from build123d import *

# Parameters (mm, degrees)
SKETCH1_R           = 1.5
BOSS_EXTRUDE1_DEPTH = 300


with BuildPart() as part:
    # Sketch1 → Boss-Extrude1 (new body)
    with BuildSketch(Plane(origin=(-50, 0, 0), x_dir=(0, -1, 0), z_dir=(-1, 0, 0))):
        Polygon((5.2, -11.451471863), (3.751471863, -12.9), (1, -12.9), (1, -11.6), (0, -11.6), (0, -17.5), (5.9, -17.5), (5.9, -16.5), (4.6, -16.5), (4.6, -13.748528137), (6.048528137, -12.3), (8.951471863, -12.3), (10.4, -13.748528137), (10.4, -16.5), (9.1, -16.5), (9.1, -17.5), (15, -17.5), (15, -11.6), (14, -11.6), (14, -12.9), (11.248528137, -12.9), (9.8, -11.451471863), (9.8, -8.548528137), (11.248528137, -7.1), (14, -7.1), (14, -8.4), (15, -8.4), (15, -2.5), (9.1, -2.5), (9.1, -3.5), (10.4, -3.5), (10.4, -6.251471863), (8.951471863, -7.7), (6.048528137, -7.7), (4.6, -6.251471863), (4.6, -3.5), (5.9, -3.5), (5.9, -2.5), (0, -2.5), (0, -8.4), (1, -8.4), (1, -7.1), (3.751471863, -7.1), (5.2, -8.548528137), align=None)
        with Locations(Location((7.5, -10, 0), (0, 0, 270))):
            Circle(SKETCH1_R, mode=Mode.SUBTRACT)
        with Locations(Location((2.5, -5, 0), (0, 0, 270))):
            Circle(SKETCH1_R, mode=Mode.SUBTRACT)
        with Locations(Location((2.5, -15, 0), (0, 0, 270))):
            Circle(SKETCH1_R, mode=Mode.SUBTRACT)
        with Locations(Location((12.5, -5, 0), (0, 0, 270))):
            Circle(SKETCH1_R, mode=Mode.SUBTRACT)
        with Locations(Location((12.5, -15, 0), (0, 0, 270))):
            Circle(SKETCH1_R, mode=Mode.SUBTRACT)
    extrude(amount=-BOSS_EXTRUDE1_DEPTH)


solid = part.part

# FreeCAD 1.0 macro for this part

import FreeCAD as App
import Part
import Sketcher
Q = App.Units.Quantity


def add_polygon(sketch, points):
    """Adds a closed chain of lines whose ends are joined by coincident constraints."""
    first, n = sketch.GeometryCount, len(points)
    for a, b in zip(points, points[1:] + points[:1]):
        sketch.addGeometry(Part.LineSegment(App.Vector(*a, 0), App.Vector(*b, 0)), False)
    for i in range(n):
        sketch.addConstraint(Sketcher.Constraint("Coincident", first + i, 2, first + (i + 1) % n, 1))

doc = App.newDocument("Part")
params = doc.addObject("Spreadsheet::Sheet", "Params")
for row, (alias, value) in enumerate([
    ("sketch1_diameter", "3 mm"),
    ("sketch1_width", "1 mm"),
    ("sketch1_width2", "5.9 mm"),
    ("sketch1_width3", "1.3 mm"),
    ("pad1_length", "300 mm"),
], start=1):
    params.set(f"A{row}", alias)
    params.set(f"B{row}", "=" + value)
    params.setAlias(f"B{row}", alias)

body = doc.addObject("PartDesign::Body", "Body")

sketch1 = body.newObject("Sketcher::SketchObject", "Sketch")
sketch1.AttachmentSupport = (doc.getObject("YZ_Plane"), [""])
sketch1.MapMode = "FlatFace"
sketch1.AttachmentOffset = App.Placement(App.Vector(0, 0, -50), App.Rotation())
add_polygon(sketch1, [(-5.2, -11.5), (-3.8, -12.9), (-1, -12.9), (-1, -11.6), (0, -11.6), (0, -17.5), (-5.9, -17.5), (-5.9, -16.5), (-4.6, -16.5), (-4.6, -13.7), (-6, -12.3), (-9, -12.3), (-10.4, -13.7), (-10.4, -16.5), (-9.1, -16.5), (-9.1, -17.5), (-15, -17.5), (-15, -11.6), (-14, -11.6), (-14, -12.9), (-11.2, -12.9), (-9.8, -11.5), (-9.8, -8.5), (-11.2, -7.1), (-14, -7.1), (-14, -8.4), (-15, -8.4), (-15, -2.5), (-9.1, -2.5), (-9.1, -3.5), (-10.4, -3.5), (-10.4, -6.3), (-9, -7.7), (-6, -7.7), (-4.6, -6.3), (-4.6, -3.5), (-5.9, -3.5), (-5.9, -2.5), (0, -2.5), (0, -8.4), (-1, -8.4), (-1, -7.1), (-3.8, -7.1), (-5.2, -8.5)])
sketch1.addGeometry(Part.Circle(App.Vector(-2.5, -15, 0), App.Vector(0, 0, 1), 1.5), False)
sketch1.addGeometry(Part.Circle(App.Vector(-12.5, -15, 0), App.Vector(0, 0, 1), 1.5), False)
sketch1.addGeometry(Part.Circle(App.Vector(-2.5, -5, 0), App.Vector(0, 0, 1), 1.5), False)
sketch1.addGeometry(Part.Circle(App.Vector(-7.5, -10, 0), App.Vector(0, 0, 1), 1.5), False)
sketch1.addGeometry(Part.Circle(App.Vector(-12.5, -5, 0), App.Vector(0, 0, 1), 1.5), False)
sketch1.addConstraint(Sketcher.Constraint("Horizontal", 1))
sketch1.addConstraint(Sketcher.Constraint("Vertical", 2))
sketch1.addConstraint(Sketcher.Constraint("Horizontal", 3))
sketch1.addConstraint(Sketcher.Constraint("Vertical", 4))
sketch1.addConstraint(Sketcher.Constraint("Horizontal", 5))
sketch1.addConstraint(Sketcher.Constraint("Vertical", 6))
sketch1.addConstraint(Sketcher.Constraint("Horizontal", 7))
sketch1.addConstraint(Sketcher.Constraint("Vertical", 8))
sketch1.addConstraint(Sketcher.Constraint("Horizontal", 10))
sketch1.addConstraint(Sketcher.Constraint("Vertical", 12))
sketch1.addConstraint(Sketcher.Constraint("Horizontal", 13))
sketch1.addConstraint(Sketcher.Constraint("Vertical", 14))
sketch1.addConstraint(Sketcher.Constraint("Horizontal", 15))
sketch1.addConstraint(Sketcher.Constraint("Vertical", 16))
sketch1.addConstraint(Sketcher.Constraint("Horizontal", 17))
sketch1.addConstraint(Sketcher.Constraint("Vertical", 18))
sketch1.addConstraint(Sketcher.Constraint("Horizontal", 19))
sketch1.addConstraint(Sketcher.Constraint("Vertical", 21))
sketch1.addConstraint(Sketcher.Constraint("Horizontal", 23))
sketch1.addConstraint(Sketcher.Constraint("Vertical", 24))
sketch1.addConstraint(Sketcher.Constraint("Horizontal", 25))
sketch1.addConstraint(Sketcher.Constraint("Vertical", 26))
sketch1.addConstraint(Sketcher.Constraint("Horizontal", 27))
sketch1.addConstraint(Sketcher.Constraint("Vertical", 28))
sketch1.addConstraint(Sketcher.Constraint("Horizontal", 29))
sketch1.addConstraint(Sketcher.Constraint("Vertical", 30))
sketch1.addConstraint(Sketcher.Constraint("Horizontal", 32))
sketch1.addConstraint(Sketcher.Constraint("Vertical", 34))
sketch1.addConstraint(Sketcher.Constraint("Horizontal", 35))
sketch1.addConstraint(Sketcher.Constraint("Vertical", 36))
sketch1.addConstraint(Sketcher.Constraint("Horizontal", 37))
sketch1.addConstraint(Sketcher.Constraint("Vertical", 38))
sketch1.addConstraint(Sketcher.Constraint("Horizontal", 39))
sketch1.addConstraint(Sketcher.Constraint("Vertical", 40))
sketch1.addConstraint(Sketcher.Constraint("Horizontal", 41))
sketch1.addConstraint(Sketcher.Constraint("Vertical", 43))
sketch1.addConstraint(Sketcher.Constraint("Equal", 44, 45))
sketch1.addConstraint(Sketcher.Constraint("Equal", 45, 46))
sketch1.addConstraint(Sketcher.Constraint("Equal", 46, 47))
sketch1.addConstraint(Sketcher.Constraint("Equal", 47, 48))
sketch1.addConstraint(Sketcher.Constraint("PointOnObject", 3, 2, -2))
sketch1.addConstraint(Sketcher.Constraint("PointOnObject", 37, 2, -2))
sketch1.addConstraint(Sketcher.Constraint("Parallel", 0, 9))
sketch1.addConstraint(Sketcher.Constraint("Perpendicular", 9, 11))
sketch1.addConstraint(Sketcher.Constraint("Parallel", 11, 20))
sketch1.addConstraint(Sketcher.Constraint("Perpendicular", 20, 22))
sketch1.addConstraint(Sketcher.Constraint("Parallel", 22, 31))
sketch1.addConstraint(Sketcher.Constraint("Perpendicular", 31, 33))
sketch1.addConstraint(Sketcher.Constraint("Parallel", 33, 42))
sketch1.addConstraint(Sketcher.Constraint("Horizontal", 44, 3, 45, 3))
sketch1.addConstraint(Sketcher.Constraint("Horizontal", 46, 3, 48, 3))
sketch1.addConstraint(Sketcher.Constraint("Horizontal", 8, 2, 11, 2))
sketch1.addConstraint(Sketcher.Constraint("Horizontal", 7, 2, 12, 2))
sketch1.addConstraint(Sketcher.Constraint("Horizontal", 5, 2, 14, 2))
sketch1.addConstraint(Sketcher.Constraint("Horizontal", 3, 2, 16, 2))
sketch1.addConstraint(Sketcher.Constraint("Horizontal", 1, 2, 18, 2))
sketch1.addConstraint(Sketcher.Constraint("Horizontal", 30, 2, 33, 2))
sketch1.addConstraint(Sketcher.Constraint("Horizontal", 29, 2, 34, 2))
sketch1.addConstraint(Sketcher.Constraint("Horizontal", 27, 2, 36, 2))
sketch1.addConstraint(Sketcher.Constraint("Horizontal", 25, 2, 38, 2))
sketch1.addConstraint(Sketcher.Constraint("Horizontal", 23, 2, 40, 2))
sketch1.addConstraint(Sketcher.Constraint("Horizontal", 21, 2, 42, 2))
sketch1.addConstraint(Sketcher.Constraint("Horizontal", 20, 2, 43, 2))
sketch1.addConstraint(Sketcher.Constraint("Vertical", 44, 3, 46, 3))
sketch1.addConstraint(Sketcher.Constraint("Vertical", 45, 3, 48, 3))
sketch1.addConstraint(Sketcher.Constraint("Vertical", 19, 2, 22, 2))
sketch1.addConstraint(Sketcher.Constraint("Vertical", 18, 2, 23, 2))
sketch1.addConstraint(Sketcher.Constraint("Vertical", 16, 2, 25, 2))
sketch1.addConstraint(Sketcher.Constraint("Vertical", 14, 2, 27, 2))
sketch1.addConstraint(Sketcher.Constraint("Vertical", 12, 2, 29, 2))
sketch1.addConstraint(Sketcher.Constraint("Vertical", 10, 2, 31, 2))
sketch1.addConstraint(Sketcher.Constraint("Vertical", 9, 2, 32, 2))
sketch1.addConstraint(Sketcher.Constraint("Vertical", 8, 2, 33, 2))
sketch1.addConstraint(Sketcher.Constraint("Vertical", 6, 2, 35, 2))
sketch1.addConstraint(Sketcher.Constraint("Vertical", 2, 2, 39, 2))
sketch1.addConstraint(Sketcher.Constraint("Equal", 7, 13))
sketch1.addConstraint(Sketcher.Constraint("Equal", 5, 15))
sketch1.addConstraint(Sketcher.Constraint("Equal", 3, 17))
sketch1.addConstraint(Sketcher.Constraint("Equal", 1, 19))
sketch1.addConstraint(Sketcher.Constraint("Equal", 35, 2))
sketch1.addConstraint(Sketcher.Constraint("Equal", 37, 4))
sketch1.addConstraint(Sketcher.Constraint("Equal", 39, 6))
sketch1.addConstraint(Sketcher.Constraint("Equal", 41, 8))
sketch1.addConstraint(Sketcher.Constraint("Equal", 32, 21))
sketch1.addConstraint(Sketcher.Constraint("Equal", 18, 24))
sketch1.addConstraint(Sketcher.Constraint("Equal", 16, 26))
sketch1.addConstraint(Sketcher.Constraint("Equal", 14, 28))
sketch1.addConstraint(Sketcher.Constraint("Equal", 12, 30))
sketch1.addConstraint(Sketcher.Constraint("Equal", 0, 9))
sketch1.addConstraint(Sketcher.Constraint("Diameter", 44, Q("3 mm")))
sketch1.addConstraint(Sketcher.Constraint("DistanceX", 3, 1, 3, 2, Q("1 mm")))
sketch1.addConstraint(Sketcher.Constraint("DistanceX", 5, 2, 5, 1, Q("5.9 mm")))
sketch1.addConstraint(Sketcher.Constraint("DistanceX", 7, 1, 7, 2, Q("1.3 mm")))
sketch1.addConstraint(Sketcher.Constraint("DistanceY", 44, 3, -1, 1, Q("15 mm")))
sketch1.addConstraint(Sketcher.Constraint("DistanceY", 46, 3, -1, 1, Q("5 mm")))
sketch1.addConstraint(Sketcher.Constraint("DistanceY", 47, 3, -1, 1, Q("10 mm")))
sketch1.addConstraint(Sketcher.Constraint("DistanceX", 15, 2, -1, 1, Q("15 mm")))
sketch1.addConstraint(Sketcher.Constraint("DistanceX", 45, 3, 44, 3, Q("10 mm")))
sketch1.addConstraint(Sketcher.Constraint("DistanceX", 47, 3, 44, 3, Q("5 mm")))
sketch1.addConstraint(Sketcher.Constraint("DistanceX", 44, 3, -1, 1, Q("2.5 mm")))
sketch1.addConstraint(Sketcher.Constraint("DistanceY", 0, 2, -1, 1, Q("12.9 mm")))
sketch1.addConstraint(Sketcher.Constraint("DistanceY", 9, 2, -1, 1, Q("12.3 mm")))
sketch1.addConstraint(Sketcher.Constraint("DistanceX", 1, 1, 1, 2, Q("2.751472 mm")))
sketch1.setExpression("Constraints[133]", "Params.sketch1_diameter")
sketch1.setExpression("Constraints[134]", "Params.sketch1_width")
sketch1.setExpression("Constraints[135]", "Params.sketch1_width2")
sketch1.setExpression("Constraints[136]", "Params.sketch1_width3")
pad1 = body.newObject("PartDesign::Pad", "Pad")
pad1.Profile = sketch1
pad1.setExpression("Length", "Params.pad1_length")

doc.recompute()
